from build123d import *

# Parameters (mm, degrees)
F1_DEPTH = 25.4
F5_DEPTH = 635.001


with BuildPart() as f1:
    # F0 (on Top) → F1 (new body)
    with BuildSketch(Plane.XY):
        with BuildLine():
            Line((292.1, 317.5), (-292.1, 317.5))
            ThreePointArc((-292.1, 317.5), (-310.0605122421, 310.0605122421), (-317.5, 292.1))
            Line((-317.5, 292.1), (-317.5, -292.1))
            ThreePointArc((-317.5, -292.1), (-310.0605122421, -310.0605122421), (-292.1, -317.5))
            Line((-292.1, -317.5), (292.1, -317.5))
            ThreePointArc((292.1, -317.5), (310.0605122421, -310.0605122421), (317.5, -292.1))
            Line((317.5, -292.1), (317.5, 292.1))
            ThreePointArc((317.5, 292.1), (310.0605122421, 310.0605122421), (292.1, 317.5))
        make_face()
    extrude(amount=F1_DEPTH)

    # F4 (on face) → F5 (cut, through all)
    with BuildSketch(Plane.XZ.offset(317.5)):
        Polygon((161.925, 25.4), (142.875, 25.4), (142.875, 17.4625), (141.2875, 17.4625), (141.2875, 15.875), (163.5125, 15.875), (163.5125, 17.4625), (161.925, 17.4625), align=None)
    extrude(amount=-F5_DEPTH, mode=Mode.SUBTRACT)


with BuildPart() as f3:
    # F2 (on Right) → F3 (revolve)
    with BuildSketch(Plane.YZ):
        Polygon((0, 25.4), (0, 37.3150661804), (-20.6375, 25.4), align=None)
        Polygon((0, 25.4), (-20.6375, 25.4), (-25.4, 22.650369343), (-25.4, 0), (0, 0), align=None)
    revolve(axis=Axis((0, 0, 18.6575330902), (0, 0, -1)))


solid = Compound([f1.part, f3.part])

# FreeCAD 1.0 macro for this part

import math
import FreeCAD as App
import Part
import Sketcher
from FreeCAD import Vector
Q = App.Units.Quantity


def add_polygon(sketch, points):
    """Adds a closed chain of lines whose ends are joined by coincident constraints."""
    first, n = sketch.GeometryCount, len(points)
    for a, b in zip(points, points[1:] + points[:1]):
        sketch.addGeometry(Part.LineSegment(App.Vector(*a, 0), App.Vector(*b, 0)), False)
    for i in range(n):
        sketch.addConstraint(Sketcher.Constraint("Coincident", first + i, 2, first + (i + 1) % n, 1))

doc = App.newDocument("Part")
params = doc.addObject("Spreadsheet::Sheet", "Params")
for row, (alias, value) in enumerate([
    ("sketch1_radius", "1 in"),
    ("sketch1_width", "23 in"),
    ("pad1_length", "1 in"),
    ("sketch2_width", "0.75 in"),
    ("sketch2_width2", "0.0625 in"),
    ("sketch2_height", "0.3125 in"),
    ("sketch3_width", "1 in"),
    ("revolution_angle", "360 deg"),
], start=1):
    params.set(f"A{row}", alias)
    params.set(f"B{row}", "=" + value)
    params.setAlias(f"B{row}", alias)

body = doc.addObject("PartDesign::Body", "Body")

sketch1 = doc.addObject("Sketcher::SketchObject", "Sketch")
body.addObject(sketch1)
sketch1.AttachmentSupport = (doc.XY_Plane, [""])
sketch1.MapMode = "FlatFace"
sketch1.addGeometry([
    Part.LineSegment(Vector(292, 318, 0), Vector(-292, 318, 0)),
    Part.ArcOfCircle(Part.Circle(Vector(-292, 292, 0), Vector(0, 0, 1), 25), math.radians(90), math.radians(180)),
    Part.LineSegment(Vector(-318, 292, 0), Vector(-318, -292, 0)),
    Part.ArcOfCircle(Part.Circle(Vector(-292, -292, 0), Vector(0, 0, 1), 25), math.radians(180), math.radians(270)),
    Part.LineSegment(Vector(-292, -318, 0), Vector(292, -318, 0)),
    Part.ArcOfCircle(Part.Circle(Vector(292, -292, 0), Vector(0, 0, 1), 25), math.radians(-90), math.radians(0)),
    Part.LineSegment(Vector(318, -292, 0), Vector(318, 292, 0)),
    Part.ArcOfCircle(Part.Circle(Vector(292, 292, 0), Vector(0, 0, 1), 25), math.radians(0), math.radians(90)),
], False)
sketch1.addConstraint([
    Sketcher.Constraint("Tangent", 0, 2, 1, 1),
    Sketcher.Constraint("Tangent", 1, 2, 2, 1),
    Sketcher.Constraint("Tangent", 2, 2, 3, 1),
    Sketcher.Constraint("Tangent", 3, 2, 4, 1),
    Sketcher.Constraint("Tangent", 4, 2, 5, 1),
    Sketcher.Constraint("Tangent", 5, 2, 6, 1),
    Sketcher.Constraint("Tangent", 6, 2, 7, 1),
    Sketcher.Constraint("Tangent", 7, 2, 0, 1),
    Sketcher.Constraint("Horizontal", 0),
    Sketcher.Constraint("Vertical", 2),
    Sketcher.Constraint("Horizontal", 4),
    Sketcher.Constraint("Vertical", 6),
    Sketcher.Constraint("Equal", 1, 3),
    Sketcher.Constraint("Equal", 3, 5),
    Sketcher.Constraint("Equal", 5, 7),
    Sketcher.Constraint("Symmetric", 1, 3, 5, 3, -1, 1),
    Sketcher.Constraint("Equal", 4, 2),
    Sketcher.Constraint("Radius", 1, Q("1 in")),
    Sketcher.Constraint("DistanceX", 0, 2, 0, 1, Q("23 in")),
])
sketch1.setExpression("Constraints[17]", "Params.sketch1_radius")
sketch1.setExpression("Constraints[18]", "Params.sketch1_width")
pad1 = doc.addObject("PartDesign::Pad", "Pad")
body.addObject(pad1)
pad1.Profile = sketch1
pad1.setExpression("Length", "Params.pad1_length")

sketch2 = doc.addObject("Sketcher::SketchObject", "Sketch001")
body.addObject(sketch2)
sketch2.AttachmentSupport = (doc.XZ_Plane, [""])
sketch2.MapMode = "FlatFace"
sketch2.AttachmentOffset = App.Placement(Vector(0, 0, 12.5 * 25.4), App.Rotation())
add_polygon(sketch2, [(161.9, 25.4), (142.9, 25.4), (142.9, 17.5), (141.3, 17.5), (141.3, 15.9), (163.5, 15.9), (163.5, 17.5), (161.9, 17.5)])
sketch2.addConstraint([
    Sketcher.Constraint("Horizontal", 0),
    Sketcher.Constraint("Vertical", 1),
    Sketcher.Constraint("Horizontal", 2),
    Sketcher.Constraint("Vertical", 3),
    Sketcher.Constraint("Horizontal", 4),
    Sketcher.Constraint("Vertical", 5),
    Sketcher.Constraint("Horizontal", 6),
    Sketcher.Constraint("Vertical", 7),
    Sketcher.Constraint("Horizontal", 2, 2, 5, 2),
    Sketcher.Constraint("Equal", 2, 6),
    Sketcher.Constraint("Equal", 6, 3),
    Sketcher.Constraint("DistanceY", -1, 1, 0, 2, Q("1 in")),
    Sketcher.Constraint("DistanceX", 0, 2, 0, 1, Q("0.75 in")),
    Sketcher.Constraint("DistanceX", 2, 2, 2, 1, Q("0.0625 in")),
    Sketcher.Constraint("DistanceY", 1, 2, 1, 1, Q("0.3125 in")),
    Sketcher.Constraint("DistanceX", -1, 1, 0, 2, Q("5.625 in")),
])
sketch2.setExpression("Constraints[20]", "Params.sketch2_width")
sketch2.setExpression("Constraints[21]", "Params.sketch2_width2")
sketch2.setExpression("Constraints[22]", "Params.sketch2_height")
pocket1 = doc.addObject("PartDesign::Pocket", "Pocket")
body.addObject(pocket1)
pocket1.Profile = sketch2
pocket1.Type = "ThroughAll"
body2 = doc.addObject("PartDesign::Body", "Body001")

sketch3 = doc.addObject("Sketcher::SketchObject", "Sketch002")
body2.addObject(sketch3)
sketch3.AttachmentSupport = (doc.getObject("YZ_Plane001"), [""])
sketch3.MapMode = "FlatFace"
add_polygon(sketch3, [(0, 37), (-21, 25), (-25, 23), (-25, 0), (0, 0)])
sketch3.addConstraint([
    Sketcher.Constraint("Vertical", 2),
    Sketcher.Constraint("Horizontal", 3),
    Sketcher.Constraint("Vertical", 4),
    Sketcher.Constraint("Coincident", 3, 2, -1, 1),
    Sketcher.Constraint("Parallel", 0, 1),
    Sketcher.Constraint("DistanceX", 3, 1, 3, 2, Q("1 in")),
    Sketcher.Constraint("DistanceY", -1, 1, 0, 2, Q("1 in")),
    Sketcher.Constraint("Angle", 0, Q("-150 deg")),
    Sketcher.Constraint("DistanceX", 0, 2, -1, 1, Q("0.8125 in")),
])
sketch3.setExpression("Constraints[10]", "Params.sketch3_width")
revolution = doc.addObject("PartDesign::Revolution", "Revolution")
body2.addObject(revolution)
revolution.Profile = sketch3
revolution.ReferenceAxis = (sketch3, ["V_Axis"])
revolution.setExpression("Angle", "Params.revolution_angle")

doc.recompute()
